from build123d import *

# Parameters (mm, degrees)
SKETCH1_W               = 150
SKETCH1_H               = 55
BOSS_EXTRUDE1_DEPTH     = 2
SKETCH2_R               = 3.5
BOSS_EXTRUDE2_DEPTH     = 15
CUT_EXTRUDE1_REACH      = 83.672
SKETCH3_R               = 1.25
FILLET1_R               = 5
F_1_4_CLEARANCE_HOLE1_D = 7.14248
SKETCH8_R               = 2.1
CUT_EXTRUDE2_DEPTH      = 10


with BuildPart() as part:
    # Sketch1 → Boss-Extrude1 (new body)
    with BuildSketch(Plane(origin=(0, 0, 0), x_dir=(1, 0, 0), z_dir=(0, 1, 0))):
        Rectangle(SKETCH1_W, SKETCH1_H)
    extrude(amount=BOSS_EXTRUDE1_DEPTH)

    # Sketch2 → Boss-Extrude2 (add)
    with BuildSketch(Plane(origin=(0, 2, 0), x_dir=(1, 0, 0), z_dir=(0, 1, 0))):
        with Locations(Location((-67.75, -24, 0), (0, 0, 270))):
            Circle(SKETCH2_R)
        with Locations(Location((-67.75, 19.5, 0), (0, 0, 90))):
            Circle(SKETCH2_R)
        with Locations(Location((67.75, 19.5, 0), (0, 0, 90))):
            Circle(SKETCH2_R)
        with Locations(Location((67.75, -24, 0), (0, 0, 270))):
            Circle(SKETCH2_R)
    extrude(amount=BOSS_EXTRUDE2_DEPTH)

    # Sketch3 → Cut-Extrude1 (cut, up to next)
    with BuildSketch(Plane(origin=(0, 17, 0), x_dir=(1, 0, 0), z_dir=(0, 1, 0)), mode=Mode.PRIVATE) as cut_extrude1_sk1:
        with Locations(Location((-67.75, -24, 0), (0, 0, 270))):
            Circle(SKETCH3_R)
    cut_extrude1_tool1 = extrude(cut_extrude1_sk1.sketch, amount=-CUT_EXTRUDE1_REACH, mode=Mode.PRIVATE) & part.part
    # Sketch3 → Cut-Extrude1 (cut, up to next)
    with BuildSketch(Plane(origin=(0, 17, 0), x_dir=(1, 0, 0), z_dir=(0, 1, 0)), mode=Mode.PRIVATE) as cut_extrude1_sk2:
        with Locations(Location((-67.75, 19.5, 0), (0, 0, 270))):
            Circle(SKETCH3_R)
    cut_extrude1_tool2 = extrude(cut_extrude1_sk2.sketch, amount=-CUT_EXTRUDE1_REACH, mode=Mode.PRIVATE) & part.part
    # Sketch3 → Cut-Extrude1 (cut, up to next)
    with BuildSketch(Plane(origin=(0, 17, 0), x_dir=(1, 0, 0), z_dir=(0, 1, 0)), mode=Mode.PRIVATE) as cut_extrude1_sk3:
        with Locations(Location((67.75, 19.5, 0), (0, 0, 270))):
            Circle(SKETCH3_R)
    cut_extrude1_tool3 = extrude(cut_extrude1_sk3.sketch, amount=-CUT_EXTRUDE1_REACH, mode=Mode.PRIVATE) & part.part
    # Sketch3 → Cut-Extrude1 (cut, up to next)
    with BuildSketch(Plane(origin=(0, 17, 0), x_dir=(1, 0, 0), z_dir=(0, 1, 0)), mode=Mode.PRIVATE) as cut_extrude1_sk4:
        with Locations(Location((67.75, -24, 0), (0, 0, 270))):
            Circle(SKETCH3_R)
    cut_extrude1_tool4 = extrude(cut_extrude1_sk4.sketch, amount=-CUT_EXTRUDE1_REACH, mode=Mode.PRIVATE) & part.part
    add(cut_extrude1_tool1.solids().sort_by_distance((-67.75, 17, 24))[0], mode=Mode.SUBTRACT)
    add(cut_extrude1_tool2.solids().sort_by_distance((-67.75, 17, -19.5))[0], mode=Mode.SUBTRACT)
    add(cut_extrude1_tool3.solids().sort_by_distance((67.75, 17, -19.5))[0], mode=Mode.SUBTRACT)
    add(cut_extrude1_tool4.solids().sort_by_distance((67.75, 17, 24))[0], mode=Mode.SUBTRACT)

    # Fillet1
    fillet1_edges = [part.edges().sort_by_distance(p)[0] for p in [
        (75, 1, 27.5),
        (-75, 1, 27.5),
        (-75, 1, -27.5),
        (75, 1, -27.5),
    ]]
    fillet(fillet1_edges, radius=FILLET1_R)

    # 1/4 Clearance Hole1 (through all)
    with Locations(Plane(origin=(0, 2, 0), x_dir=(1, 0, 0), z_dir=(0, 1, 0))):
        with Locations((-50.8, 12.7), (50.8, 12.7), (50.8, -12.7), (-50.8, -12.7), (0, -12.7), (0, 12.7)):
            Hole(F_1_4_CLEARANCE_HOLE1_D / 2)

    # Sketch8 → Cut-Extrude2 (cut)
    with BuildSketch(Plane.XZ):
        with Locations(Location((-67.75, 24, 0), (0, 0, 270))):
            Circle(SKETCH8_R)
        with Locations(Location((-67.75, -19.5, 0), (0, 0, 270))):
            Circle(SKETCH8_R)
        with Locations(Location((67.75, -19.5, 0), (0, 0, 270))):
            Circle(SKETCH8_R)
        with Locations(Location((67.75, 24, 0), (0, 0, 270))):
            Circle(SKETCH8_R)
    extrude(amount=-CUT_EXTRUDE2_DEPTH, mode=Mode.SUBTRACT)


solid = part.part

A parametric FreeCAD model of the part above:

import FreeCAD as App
import Part
import Sketcher
from FreeCAD import Vector
Q = App.Units.Quantity


def edges_at(feature, points):
    """Names of the edges that pass closest to the given points."""
    edges = feature.Shape.Edges
    near = lambda p: min(range(len(edges)), key=lambda i: edges[i].distToShape(Part.Vertex(*p))[0])
    return sorted({f"Edge{near(p) + 1}" for p in points})


def add_polygon(sketch, points):
    """Adds a closed chain of lines whose ends are joined by coincident constraints."""
    first, n = sketch.GeometryCount, len(points)
    for a, b in zip(points, points[1:] + points[:1]):
        sketch.addGeometry(Part.LineSegment(App.Vector(*a, 0), App.Vector(*b, 0)), False)
    for i in range(n):
        sketch.addConstraint(Sketcher.Constraint("Coincident", first + i, 2, first + (i + 1) % n, 1))

doc = App.newDocument("Part")
params = doc.addObject("Spreadsheet::Sheet", "Params")
for row, (alias, value) in enumerate([
    ("sketch1_width", "150 mm"),
    ("sketch1_height", "55 mm"),
    ("pad1_length", "2 mm"),
    ("sketch2_diameter", "7 mm"),
    ("pad2_length", "15 mm"),
    ("sketch3_diameter", "2.5 mm"),
    ("sketch4_diameter", "2.5 mm"),
    ("sketch5_diameter", "2.5 mm"),
    ("sketch6_diameter", "2.5 mm"),
    ("fillet_radius", "5 mm"),
    ("hole_diameter", "7.14248 mm"),
    ("sketch8_diameter", "4.2 mm"),
    ("pocket5_length", "10 mm"),
], start=1):
    params.set(f"A{row}", alias)
    params.set(f"B{row}", "=" + value)
    params.setAlias(f"B{row}", alias)

body = doc.addObject("PartDesign::Body", "Body")

# Sketch on XZ plane
sketch1 = doc.addObject("Sketcher::SketchObject", "Sketch")
body.addObject(sketch1)
sketch1.AttachmentSupport = (doc.XZ_Plane, [""])
sketch1.MapMode = "FlatFace"
add_polygon(sketch1, [(-75, -28), (-75, 28), (75, 28), (75, -28)])  # lines 0-3
sketch1.addConstraint(Sketcher.Constraint("Vertical", 0))
sketch1.addConstraint(Sketcher.Constraint("Horizontal", 1))
sketch1.addConstraint(Sketcher.Constraint("Vertical", 2))
sketch1.addConstraint(Sketcher.Constraint("Horizontal", 3))
sketch1.addConstraint(Sketcher.Constraint("Symmetric", 0, 2, 2, 2, -1, 1))
sketch1.addConstraint(Sketcher.Constraint("DistanceX", 1, 1, 1, 2, Q("150 mm")))
sketch1.addConstraint(Sketcher.Constraint("DistanceY", 0, 1, 0, 2, Q("55 mm")))
sketch1.setExpression("Constraints[9]", "Params.sketch1_width")
sketch1.setExpression("Constraints[10]", "Params.sketch1_height")
pad1 = doc.addObject("PartDesign::Pad", "Pad")
body.addObject(pad1)
pad1.Profile = sketch1
pad1.setExpression("Length", "Params.pad1_length")
pad1.Reversed = True

# Sketch on XZ plane
sketch2 = doc.addObject("Sketcher::SketchObject", "Sketch001")
body.addObject(sketch2)
sketch2.AttachmentSupport = (doc.XZ_Plane, [""])
sketch2.MapMode = "FlatFace"
sketch2.AttachmentOffset = App.Placement(Vector(0, 0, -2), App.Rotation())
sketch2.addGeometry(Part.Circle(Vector(-67.8, 24, 0), Vector(0, 0, 1), 3.5), False)
sketch2.addGeometry(Part.Circle(Vector(-67.8, -19.5, 0), Vector(0, 0, 1), 3.5), False)
sketch2.addGeometry(Part.Circle(Vector(67.8, -19.5, 0), Vector(0, 0, 1), 3.5), False)
sketch2.addGeometry(Part.Circle(Vector(67.8, 24, 0), Vector(0, 0, 1), 3.5), False)
sketch2.addConstraint(Sketcher.Constraint("Equal", 0, 1))
sketch2.addConstraint(Sketcher.Constraint("Equal", 1, 2))
sketch2.addConstraint(Sketcher.Constraint("Equal", 2, 3))
sketch2.addConstraint(Sketcher.Constraint("Symmetric", 1, 3, 2, 3, -2))
sketch2.addConstraint(Sketcher.Constraint("Symmetric", 0, 3, 3, 3, -2))
sketch2.addConstraint(Sketcher.Constraint("Vertical", 0, 3, 1, 3))
sketch2.addConstraint(Sketcher.Constraint("Diameter", 0, Q("7 mm")))
sketch2.addConstraint(Sketcher.Constraint("DistanceY", -1, 1, 0, 3, Q("24 mm")))
sketch2.addConstraint(Sketcher.Constraint("DistanceY", 1, 3, -1, 1, Q("19.5 mm")))
sketch2.addConstraint(Sketcher.Constraint("DistanceX", 1, 3, 2, 3, Q("135.5 mm")))
sketch2.setExpression("Constraints[6]", "Params.sketch2_diameter")
pad2 = doc.addObject("PartDesign::Pad", "Pad001")
body.addObject(pad2)
pad2.Profile = sketch2
pad2.setExpression("Length", "Params.pad2_length")
pad2.Reversed = True

# Sketch on XZ plane
sketch3 = doc.addObject("Sketcher::SketchObject", "Sketch002")
body.addObject(sketch3)
sketch3.AttachmentSupport = (doc.XZ_Plane, [""])
sketch3.MapMode = "FlatFace"
sketch3.AttachmentOffset = App.Placement(Vector(0, 0, -17), App.Rotation())
sketch3.addGeometry(Part.Circle(Vector(-67.8, 24, 0), Vector(0, 0, 1), 1.2), False)
sketch3.addConstraint(Sketcher.Constraint("Diameter", 0, Q("2.5 mm")))
sketch3.addConstraint(Sketcher.Constraint("DistanceY", -1, 1, 0, 3, Q("24 mm")))
sketch3.addConstraint(Sketcher.Constraint("DistanceX", 0, 3, -1, 1, Q("67.75 mm")))
sketch3.setExpression("Constraints[0]", "Params.sketch3_diameter")
pocket1 = doc.addObject("PartDesign::Pocket", "Pocket")
body.addObject(pocket1)
pocket1.Profile = sketch3
pocket1.Type = "UpToFirst"
pocket1.Reversed = True

# Sketch on XZ plane
sketch4 = doc.addObject("Sketcher::SketchObject", "Sketch003")
body.addObject(sketch4)
sketch4.AttachmentSupport = (doc.XZ_Plane, [""])
sketch4.MapMode = "FlatFace"
sketch4.AttachmentOffset = App.Placement(Vector(0, 0, -17), App.Rotation())
sketch4.addGeometry(Part.Circle(Vector(-67.8, -19.5, 0), Vector(0, 0, 1), 1.2), False)
sketch4.addConstraint(Sketcher.Constraint("Diameter", 0, Q("2.5 mm")))
sketch4.addConstraint(Sketcher.Constraint("DistanceY", 0, 3, -1, 1, Q("19.5 mm")))
sketch4.addConstraint(Sketcher.Constraint("DistanceX", 0, 3, -1, 1, Q("67.75 mm")))
sketch4.setExpression("Constraints[0]", "Params.sketch4_diameter")
pocket2 = doc.addObject("PartDesign::Pocket", "Pocket001")
body.addObject(pocket2)
pocket2.Profile = sketch4
pocket2.Type = "UpToFirst"
pocket2.Reversed = True

# Sketch on XZ plane
sketch5 = doc.addObject("Sketcher::SketchObject", "Sketch004")
body.addObject(sketch5)
sketch5.AttachmentSupport = (doc.XZ_Plane, [""])
sketch5.MapMode = "FlatFace"
sketch5.AttachmentOffset = App.Placement(Vector(0, 0, -17), App.Rotation())
sketch5.addGeometry(Part.Circle(Vector(67.8, -19.5, 0), Vector(0, 0, 1), 1.2), False)
sketch5.addConstraint(Sketcher.Constraint("Diameter", 0, Q("2.5 mm")))
sketch5.addConstraint(Sketcher.Constraint("DistanceY", 0, 3, -1, 1, Q("19.5 mm")))
sketch5.addConstraint(Sketcher.Constraint("DistanceX", -1, 1, 0, 3, Q("67.75 mm")))
sketch5.setExpression("Constraints[0]", "Params.sketch5_diameter")
pocket3 = doc.addObject("PartDesign::Pocket", "Pocket002")
body.addObject(pocket3)
pocket3.Profile = sketch5
pocket3.Type = "UpToFirst"
pocket3.Reversed = True

# Sketch on XZ plane
sketch6 = doc.addObject("Sketcher::SketchObject", "Sketch005")
body.addObject(sketch6)
sketch6.AttachmentSupport = (doc.XZ_Plane, [""])
sketch6.MapMode = "FlatFace"
sketch6.AttachmentOffset = App.Placement(Vector(0, 0, -17), App.Rotation())
sketch6.addGeometry(Part.Circle(Vector(67.8, 24, 0), Vector(0, 0, 1), 1.2), False)
sketch6.addConstraint(Sketcher.Constraint("Diameter", 0, Q("2.5 mm")))
sketch6.addConstraint(Sketcher.Constraint("DistanceY", -1, 1, 0, 3, Q("24 mm")))
sketch6.addConstraint(Sketcher.Constraint("DistanceX", -1, 1, 0, 3, Q("67.75 mm")))
sketch6.setExpression("Constraints[0]", "Params.sketch6_diameter")
pocket4 = doc.addObject("PartDesign::Pocket", "Pocket003")
body.addObject(pocket4)
pocket4.Profile = sketch6
pocket4.Type = "UpToFirst"
pocket4.Reversed = True
doc.recompute()

fillet = doc.addObject("PartDesign::Fillet", "Fillet")
body.addObject(fillet)
fillet.Base = (pocket4, edges_at(pocket4, [
    (75, 1, 27.5),
    (-75, 1, 27.5),
    (-75, 1, -27.5),
    (75, 1, -27.5),
]))
fillet.setExpression("Radius", "Params.fillet_radius")

# Sketch on XZ plane
sketch7 = doc.addObject("Sketcher::SketchObject", "Sketch006")
body.addObject(sketch7)
sketch7.AttachmentSupport = (doc.XZ_Plane, [""])
sketch7.MapMode = "FlatFace"
sketch7.AttachmentOffset = App.Placement(Vector(0, 0, -2), App.Rotation())
sketch7.addGeometry(Part.Circle(Vector(-50.8, -12.7, 0), Vector(0, 0, 1), 3.6), False)
sketch7.addGeometry(Part.Circle(Vector(50.8, -12.7, 0), Vector(0, 0, 1), 3.6), False)
sketch7.addGeometry(Part.Circle(Vector(50.8, 12.7, 0), Vector(0, 0, 1), 3.6), False)
sketch7.addGeometry(Part.Circle(Vector(-50.8, 12.7, 0), Vector(0, 0, 1), 3.6), False)
sketch7.addGeometry(Part.Circle(Vector(0, 12.7, 0), Vector(0, 0, 1), 3.6), False)
sketch7.addGeometry(Part.Circle(Vector(0, -12.7, 0), Vector(0, 0, 1), 3.6), False)
sketch7.addConstraint(Sketcher.Constraint("Equal", 0, 1))
sketch7.addConstraint(Sketcher.Constraint("Equal", 1, 2))
sketch7.addConstraint(Sketcher.Constraint("Equal", 2, 3))
sketch7.addConstraint(Sketcher.Constraint("Equal", 3, 4))
sketch7.addConstraint(Sketcher.Constraint("Equal", 4, 5))
sketch7.addConstraint(Sketcher.Constraint("Symmetric", 0, 3, 2, 3, -1, 1))
sketch7.addConstraint(Sketcher.Constraint("Symmetric", 1, 3, 3, 3, -1, 1))
sketch7.addConstraint(Sketcher.Constraint("Symmetric", 4, 3, 5, 3, -1, 1))
sketch7.addConstraint(Sketcher.Constraint("Symmetric", 0, 3, 1, 3, -2))
sketch7.addConstraint(Sketcher.Constraint("PointOnObject", 4, 3, -2))
sketch7.addConstraint(Sketcher.Constraint("Horizontal", 3, 3, 4, 3))
sketch7.addConstraint(Sketcher.Constraint("DistanceX", 0, 3, -1, 1, Q("50.8 mm")))
sketch7.addConstraint(Sketcher.Constraint("DistanceY", 0, 3, -1, 1, Q("12.7 mm")))
sketch7.addConstraint(Sketcher.Constraint("Diameter", 0, Q("7.14248 mm")))
doc.recompute()
hole = doc.addObject("PartDesign::Hole", "Hole")
body.addObject(hole)
hole.Profile = sketch7
hole.ThreadType = "None"
hole.setExpression("Diameter", "Params.hole_diameter")
hole.DepthType = "ThroughAll"
hole.Reversed = True

# Sketch on XZ plane
sketch8 = doc.addObject("Sketcher::SketchObject", "Sketch007")
body.addObject(sketch8)
sketch8.AttachmentSupport = (doc.XZ_Plane, [""])
sketch8.MapMode = "FlatFace"
sketch8.addGeometry(Part.Circle(Vector(-67.8, 24, 0), Vector(0, 0, 1), 2.1), False)
sketch8.addGeometry(Part.Circle(Vector(-67.8, -19.5, 0), Vector(0, 0, 1), 2.1), False)
sketch8.addGeometry(Part.Circle(Vector(67.8, -19.5, 0), Vector(0, 0, 1), 2.1), False)
sketch8.addGeometry(Part.Circle(Vector(67.8, 24, 0), Vector(0, 0, 1), 2.1), False)
sketch8.addConstraint(Sketcher.Constraint("Equal", 0, 1))
sketch8.addConstraint(Sketcher.Constraint("Equal", 1, 2))
sketch8.addConstraint(Sketcher.Constraint("Equal", 2, 3))
sketch8.addConstraint(Sketcher.Constraint("Symmetric", 1, 3, 2, 3, -2))
sketch8.addConstraint(Sketcher.Constraint("Symmetric", 0, 3, 3, 3, -2))
sketch8.addConstraint(Sketcher.Constraint("Vertical", 0, 3, 1, 3))
sketch8.addConstraint(Sketcher.Constraint("Diameter", 0, Q("4.2 mm")))
sketch8.addConstraint(Sketcher.Constraint("DistanceY", -1, 1, 0, 3, Q("24 mm")))
sketch8.addConstraint(Sketcher.Constraint("DistanceY", 1, 3, -1, 1, Q("19.5 mm")))
sketch8.addConstraint(Sketcher.Constraint("DistanceX", 1, 3, 2, 3, Q("135.5 mm")))
sketch8.setExpression("Constraints[6]", "Params.sketch8_diameter")
pocket5 = doc.addObject("PartDesign::Pocket", "Pocket004")
body.addObject(pocket5)
pocket5.Profile = sketch8
pocket5.setExpression("Length", "Params.pocket5_length")

doc.recompute()
